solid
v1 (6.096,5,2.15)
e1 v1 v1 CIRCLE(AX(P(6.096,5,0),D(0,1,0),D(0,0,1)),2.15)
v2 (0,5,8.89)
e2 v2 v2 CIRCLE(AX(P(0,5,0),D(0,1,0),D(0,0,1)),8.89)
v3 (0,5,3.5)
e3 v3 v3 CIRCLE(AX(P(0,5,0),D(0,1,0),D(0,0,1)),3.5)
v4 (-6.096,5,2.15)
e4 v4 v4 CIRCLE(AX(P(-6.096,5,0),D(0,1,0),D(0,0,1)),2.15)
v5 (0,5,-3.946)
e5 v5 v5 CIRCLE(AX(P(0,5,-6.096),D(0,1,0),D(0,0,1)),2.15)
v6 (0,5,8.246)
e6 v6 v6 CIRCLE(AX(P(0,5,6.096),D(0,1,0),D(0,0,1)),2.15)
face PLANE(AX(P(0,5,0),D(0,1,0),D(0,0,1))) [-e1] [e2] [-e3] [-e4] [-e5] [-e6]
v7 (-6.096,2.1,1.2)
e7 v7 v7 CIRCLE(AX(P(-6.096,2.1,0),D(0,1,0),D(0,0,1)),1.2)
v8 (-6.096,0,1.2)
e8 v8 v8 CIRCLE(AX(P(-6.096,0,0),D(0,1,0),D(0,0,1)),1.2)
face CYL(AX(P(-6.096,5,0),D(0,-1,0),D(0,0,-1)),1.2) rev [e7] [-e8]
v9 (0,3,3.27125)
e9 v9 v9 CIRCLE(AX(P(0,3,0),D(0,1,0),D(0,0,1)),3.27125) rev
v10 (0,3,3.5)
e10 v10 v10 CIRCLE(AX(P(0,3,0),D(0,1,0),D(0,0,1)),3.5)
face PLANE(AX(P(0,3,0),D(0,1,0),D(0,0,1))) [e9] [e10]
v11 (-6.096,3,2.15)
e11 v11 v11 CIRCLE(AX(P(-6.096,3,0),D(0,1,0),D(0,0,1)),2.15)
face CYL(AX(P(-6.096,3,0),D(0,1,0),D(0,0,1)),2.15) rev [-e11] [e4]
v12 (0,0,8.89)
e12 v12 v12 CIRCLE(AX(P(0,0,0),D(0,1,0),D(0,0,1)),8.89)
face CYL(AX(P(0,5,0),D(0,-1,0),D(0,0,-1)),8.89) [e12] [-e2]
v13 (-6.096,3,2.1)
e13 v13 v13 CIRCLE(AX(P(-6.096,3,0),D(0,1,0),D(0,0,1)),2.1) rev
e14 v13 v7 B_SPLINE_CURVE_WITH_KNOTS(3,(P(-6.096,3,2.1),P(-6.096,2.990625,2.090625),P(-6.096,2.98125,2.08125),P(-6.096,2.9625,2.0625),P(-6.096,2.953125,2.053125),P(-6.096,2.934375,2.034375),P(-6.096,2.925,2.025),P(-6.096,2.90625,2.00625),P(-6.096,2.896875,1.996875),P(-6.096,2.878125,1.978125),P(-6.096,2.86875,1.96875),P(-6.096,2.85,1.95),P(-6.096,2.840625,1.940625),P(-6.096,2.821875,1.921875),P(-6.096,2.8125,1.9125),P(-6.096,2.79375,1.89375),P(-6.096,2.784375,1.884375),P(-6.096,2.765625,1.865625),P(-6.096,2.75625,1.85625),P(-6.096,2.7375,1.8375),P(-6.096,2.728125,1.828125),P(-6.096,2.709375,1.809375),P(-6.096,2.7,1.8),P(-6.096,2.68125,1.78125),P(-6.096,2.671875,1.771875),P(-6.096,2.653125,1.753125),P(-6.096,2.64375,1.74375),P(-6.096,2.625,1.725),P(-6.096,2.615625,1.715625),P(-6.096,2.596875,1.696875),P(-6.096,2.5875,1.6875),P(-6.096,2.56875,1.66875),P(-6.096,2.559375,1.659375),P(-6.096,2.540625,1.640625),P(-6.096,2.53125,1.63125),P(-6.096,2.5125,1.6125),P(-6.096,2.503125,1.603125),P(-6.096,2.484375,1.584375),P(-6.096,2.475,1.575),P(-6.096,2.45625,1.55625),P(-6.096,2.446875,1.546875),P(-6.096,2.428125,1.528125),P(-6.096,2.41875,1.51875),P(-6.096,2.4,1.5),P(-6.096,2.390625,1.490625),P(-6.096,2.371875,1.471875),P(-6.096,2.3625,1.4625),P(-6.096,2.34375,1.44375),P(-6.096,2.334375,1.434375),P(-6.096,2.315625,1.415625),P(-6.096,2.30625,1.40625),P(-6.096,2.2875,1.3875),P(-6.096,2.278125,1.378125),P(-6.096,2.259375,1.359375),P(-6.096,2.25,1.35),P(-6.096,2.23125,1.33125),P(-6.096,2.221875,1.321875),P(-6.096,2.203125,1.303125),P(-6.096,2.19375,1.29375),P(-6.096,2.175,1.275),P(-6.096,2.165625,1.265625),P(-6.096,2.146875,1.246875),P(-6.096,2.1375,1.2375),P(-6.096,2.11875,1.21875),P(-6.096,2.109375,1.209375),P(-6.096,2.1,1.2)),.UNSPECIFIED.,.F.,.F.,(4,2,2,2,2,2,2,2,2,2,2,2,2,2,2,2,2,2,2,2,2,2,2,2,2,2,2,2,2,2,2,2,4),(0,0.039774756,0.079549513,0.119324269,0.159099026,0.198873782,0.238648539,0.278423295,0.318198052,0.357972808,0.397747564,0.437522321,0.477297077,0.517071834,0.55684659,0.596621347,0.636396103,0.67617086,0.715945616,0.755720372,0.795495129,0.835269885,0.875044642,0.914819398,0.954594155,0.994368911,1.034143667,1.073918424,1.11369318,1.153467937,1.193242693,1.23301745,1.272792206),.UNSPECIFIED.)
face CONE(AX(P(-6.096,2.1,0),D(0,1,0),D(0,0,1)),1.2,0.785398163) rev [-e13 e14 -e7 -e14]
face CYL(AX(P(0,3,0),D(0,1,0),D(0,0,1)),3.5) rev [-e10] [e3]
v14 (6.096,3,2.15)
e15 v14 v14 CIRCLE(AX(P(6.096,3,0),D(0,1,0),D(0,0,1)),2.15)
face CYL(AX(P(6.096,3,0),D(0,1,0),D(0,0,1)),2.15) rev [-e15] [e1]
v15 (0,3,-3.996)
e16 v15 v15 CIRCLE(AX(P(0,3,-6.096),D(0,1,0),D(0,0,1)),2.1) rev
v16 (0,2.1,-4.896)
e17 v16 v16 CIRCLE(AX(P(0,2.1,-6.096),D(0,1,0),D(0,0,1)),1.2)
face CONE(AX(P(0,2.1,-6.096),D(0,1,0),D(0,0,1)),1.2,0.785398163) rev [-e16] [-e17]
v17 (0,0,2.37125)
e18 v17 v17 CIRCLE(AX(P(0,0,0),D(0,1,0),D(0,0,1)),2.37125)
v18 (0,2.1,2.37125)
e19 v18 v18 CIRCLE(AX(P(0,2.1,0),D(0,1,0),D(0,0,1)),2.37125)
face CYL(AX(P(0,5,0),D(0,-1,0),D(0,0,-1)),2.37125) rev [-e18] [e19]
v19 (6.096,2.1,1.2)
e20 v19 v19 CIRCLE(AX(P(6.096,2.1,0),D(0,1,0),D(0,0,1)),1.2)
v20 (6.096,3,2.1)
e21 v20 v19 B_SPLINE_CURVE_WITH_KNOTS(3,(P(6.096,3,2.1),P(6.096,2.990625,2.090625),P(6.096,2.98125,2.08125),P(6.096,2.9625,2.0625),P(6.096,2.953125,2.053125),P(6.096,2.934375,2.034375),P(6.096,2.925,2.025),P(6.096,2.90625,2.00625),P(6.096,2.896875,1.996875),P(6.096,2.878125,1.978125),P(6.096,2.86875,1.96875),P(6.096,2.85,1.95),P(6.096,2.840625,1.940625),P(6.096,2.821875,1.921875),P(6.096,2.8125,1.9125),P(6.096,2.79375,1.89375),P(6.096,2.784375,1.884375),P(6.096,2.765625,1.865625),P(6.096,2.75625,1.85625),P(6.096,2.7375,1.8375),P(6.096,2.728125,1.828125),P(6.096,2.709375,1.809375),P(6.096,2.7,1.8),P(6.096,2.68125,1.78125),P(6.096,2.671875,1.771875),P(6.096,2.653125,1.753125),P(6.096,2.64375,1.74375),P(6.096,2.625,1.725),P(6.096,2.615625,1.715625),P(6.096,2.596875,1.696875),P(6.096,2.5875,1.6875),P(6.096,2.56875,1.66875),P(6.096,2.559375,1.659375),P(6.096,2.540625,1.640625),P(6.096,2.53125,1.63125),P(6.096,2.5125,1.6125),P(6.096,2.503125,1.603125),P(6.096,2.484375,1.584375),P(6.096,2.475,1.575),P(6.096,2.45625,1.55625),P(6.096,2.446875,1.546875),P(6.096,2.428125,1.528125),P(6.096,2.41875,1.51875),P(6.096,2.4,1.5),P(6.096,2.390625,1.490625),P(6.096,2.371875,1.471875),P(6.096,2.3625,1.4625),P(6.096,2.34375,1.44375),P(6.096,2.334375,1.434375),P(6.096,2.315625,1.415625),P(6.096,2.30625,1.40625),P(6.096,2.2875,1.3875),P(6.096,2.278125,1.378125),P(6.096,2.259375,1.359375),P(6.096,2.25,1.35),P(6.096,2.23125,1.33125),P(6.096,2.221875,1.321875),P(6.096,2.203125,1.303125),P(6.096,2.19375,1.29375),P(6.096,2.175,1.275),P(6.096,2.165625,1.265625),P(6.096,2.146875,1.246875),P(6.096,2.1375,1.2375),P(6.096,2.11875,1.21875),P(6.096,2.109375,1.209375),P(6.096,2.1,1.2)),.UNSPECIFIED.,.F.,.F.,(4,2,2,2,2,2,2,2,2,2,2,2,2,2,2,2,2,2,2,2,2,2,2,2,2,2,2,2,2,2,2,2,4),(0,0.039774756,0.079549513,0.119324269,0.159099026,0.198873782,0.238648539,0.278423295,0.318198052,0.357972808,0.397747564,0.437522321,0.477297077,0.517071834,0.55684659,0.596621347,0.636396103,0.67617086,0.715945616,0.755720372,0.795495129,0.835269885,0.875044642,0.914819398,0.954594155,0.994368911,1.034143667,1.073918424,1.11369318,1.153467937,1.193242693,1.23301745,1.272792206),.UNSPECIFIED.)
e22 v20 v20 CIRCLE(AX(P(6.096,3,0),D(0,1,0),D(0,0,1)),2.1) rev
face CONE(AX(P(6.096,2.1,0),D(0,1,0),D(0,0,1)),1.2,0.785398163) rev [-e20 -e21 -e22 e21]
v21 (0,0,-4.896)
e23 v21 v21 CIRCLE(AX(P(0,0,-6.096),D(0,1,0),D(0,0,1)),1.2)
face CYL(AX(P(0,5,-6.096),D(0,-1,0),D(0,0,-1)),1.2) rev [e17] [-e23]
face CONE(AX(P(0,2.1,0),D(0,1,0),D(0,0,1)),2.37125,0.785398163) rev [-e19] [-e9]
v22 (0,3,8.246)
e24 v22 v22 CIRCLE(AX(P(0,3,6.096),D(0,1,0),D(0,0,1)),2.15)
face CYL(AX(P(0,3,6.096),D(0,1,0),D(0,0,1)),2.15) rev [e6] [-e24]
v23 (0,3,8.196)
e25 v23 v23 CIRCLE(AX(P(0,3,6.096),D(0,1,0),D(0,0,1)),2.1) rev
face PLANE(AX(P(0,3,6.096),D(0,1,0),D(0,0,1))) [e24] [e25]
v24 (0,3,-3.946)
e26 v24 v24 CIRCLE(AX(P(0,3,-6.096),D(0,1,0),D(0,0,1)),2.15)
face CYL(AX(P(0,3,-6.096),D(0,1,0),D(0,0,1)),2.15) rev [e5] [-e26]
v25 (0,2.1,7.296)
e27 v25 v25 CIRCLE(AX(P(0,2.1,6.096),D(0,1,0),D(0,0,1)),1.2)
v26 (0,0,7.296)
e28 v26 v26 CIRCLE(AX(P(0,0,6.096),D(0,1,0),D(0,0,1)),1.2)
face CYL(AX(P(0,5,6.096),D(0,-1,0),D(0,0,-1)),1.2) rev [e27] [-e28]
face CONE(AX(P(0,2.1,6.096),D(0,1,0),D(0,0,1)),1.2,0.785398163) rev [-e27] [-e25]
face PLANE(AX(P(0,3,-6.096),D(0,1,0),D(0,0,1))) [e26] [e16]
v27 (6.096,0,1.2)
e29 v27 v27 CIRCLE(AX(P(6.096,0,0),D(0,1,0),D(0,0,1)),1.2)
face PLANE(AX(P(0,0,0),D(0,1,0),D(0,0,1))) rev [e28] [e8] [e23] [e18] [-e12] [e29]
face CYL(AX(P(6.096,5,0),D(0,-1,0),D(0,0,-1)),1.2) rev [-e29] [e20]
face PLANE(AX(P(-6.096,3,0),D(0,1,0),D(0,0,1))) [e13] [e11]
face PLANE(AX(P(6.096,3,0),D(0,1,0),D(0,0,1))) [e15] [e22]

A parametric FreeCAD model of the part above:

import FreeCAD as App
import Part
import Sketcher
from FreeCAD import Vector
Q = App.Units.Quantity


def edges_at(feature, points):
    """Names of the edges that pass closest to the given points."""
    edges = feature.Shape.Edges
    near = lambda p: min(range(len(edges)), key=lambda i: edges[i].distToShape(Part.Vertex(*p))[0])
    return sorted({f"Edge{near(p) + 1}" for p in points})

doc = App.newDocument("Part")
body = doc.addObject("PartDesign::Body", "Body")

# Sketch on XZ plane
sketch1 = body.newObject("Sketcher::SketchObject", "Sketch")
sketch1.AttachmentSupport = (doc.getObject("XZ_Plane"), [""])
sketch1.MapMode = "FlatFace"
sketch1.addGeometry([
    Part.Circle(Vector(0, 0, 0), Vector(0, 0, 1), 8.9),  # 0
    Part.Circle(Vector(0, -6.1, 0), Vector(0, 0, 1), 1.2),  # 1
    Part.Circle(Vector(-6.1, 0, 0), Vector(0, 0, 1), 1.2),  # 2
    Part.Circle(Vector(0, 0, 0), Vector(0, 0, 1), 2.4),  # 3
    Part.Circle(Vector(6.1, 0, 0), Vector(0, 0, 1), 1.2),  # 4
    Part.Circle(Vector(0, 6.1, 0), Vector(0, 0, 1), 1.2),  # 5
], False)
sketch1.addConstraint([
    Sketcher.Constraint("Coincident", 0, 3, -1, 1),
    Sketcher.Constraint("Coincident", 3, 3, -1, 1),
    Sketcher.Constraint("Equal", 1, 2),
    Sketcher.Constraint("Equal", 2, 4),
    Sketcher.Constraint("Equal", 4, 5),
    Sketcher.Constraint("Symmetric", 2, 3, 4, 3, -1, 1),
    Sketcher.Constraint("Symmetric", 1, 3, 5, 3, -1, 1),
    Sketcher.Constraint("PointOnObject", 1, 3, -2),
    Sketcher.Constraint("PointOnObject", 2, 3, -1),
    Sketcher.Constraint("Diameter", 1, Q("2.4 mm")),
    Sketcher.Constraint("Diameter", 0, Q("17.78 mm")),
    Sketcher.Constraint("Diameter", 3, Q("4.7425 mm")),
    Sketcher.Constraint("DistanceY", 1, 3, -1, 1, Q("6.096 mm")),
    Sketcher.Constraint("DistanceX", 2, 3, -1, 1, Q("6.096 mm")),
])
pad1 = body.newObject("PartDesign::Pad", "Pad")
pad1.Profile = sketch1
pad1.Length = 5
pad1.Reversed = True

# Sketch on XZ plane
sketch2 = body.newObject("Sketcher::SketchObject", "Sketch001")
sketch2.AttachmentSupport = (doc.getObject("XZ_Plane"), [""])
sketch2.MapMode = "FlatFace"
sketch2.AttachmentOffset = App.Placement(Vector(0, 0, -5), App.Rotation())
sketch2.addGeometry([
    Part.Circle(Vector(0, -6.1, 0), Vector(0, 0, 1), 2.1),  # 0
    Part.Circle(Vector(-6.1, 0, 0), Vector(0, 0, 1), 2.1),  # 1
    Part.Circle(Vector(6.1, 0, 0), Vector(0, 0, 1), 2.1),  # 2
    Part.Circle(Vector(0, 6.1, 0), Vector(0, 0, 1), 2.1),  # 3
    Part.Circle(Vector(0, 0, 0), Vector(0, 0, 1), 3.5),  # 4
], False)
sketch2.addConstraint([
    Sketcher.Constraint("Coincident", 4, 3, -1, 1),
    Sketcher.Constraint("Equal", 0, 1),
    Sketcher.Constraint("Equal", 1, 2),
    Sketcher.Constraint("Equal", 2, 3),
    Sketcher.Constraint("Symmetric", 1, 3, 2, 3, -1, 1),
    Sketcher.Constraint("Symmetric", 0, 3, 3, 3, -1, 1),
    Sketcher.Constraint("PointOnObject", 0, 3, -2),
    Sketcher.Constraint("PointOnObject", 1, 3, -1),
    Sketcher.Constraint("Diameter", 4, Q("7 mm")),
    Sketcher.Constraint("Diameter", 0, Q("4.3 mm")),
    Sketcher.Constraint("DistanceY", 0, 3, -1, 1, Q("6.096 mm")),
    Sketcher.Constraint("DistanceX", 1, 3, -1, 1, Q("6.096 mm")),
])
pocket1 = body.newObject("PartDesign::Pocket", "Pocket")
pocket1.Profile = sketch2
pocket1.Length = 2
pocket1.Reversed = True
doc.recompute()

chamfer = body.newObject("PartDesign::Chamfer", "Chamfer")
chamfer.Base = (pocket1, edges_at(pocket1, [
    (0, 3, -7.296),
    (0, 3, -2.371),
    (0, 3, 4.896),
    (6.096, 3, -1.2),
    (-6.096, 3, -1.2),
]))
chamfer.Size = 0.9

doc.recompute()
